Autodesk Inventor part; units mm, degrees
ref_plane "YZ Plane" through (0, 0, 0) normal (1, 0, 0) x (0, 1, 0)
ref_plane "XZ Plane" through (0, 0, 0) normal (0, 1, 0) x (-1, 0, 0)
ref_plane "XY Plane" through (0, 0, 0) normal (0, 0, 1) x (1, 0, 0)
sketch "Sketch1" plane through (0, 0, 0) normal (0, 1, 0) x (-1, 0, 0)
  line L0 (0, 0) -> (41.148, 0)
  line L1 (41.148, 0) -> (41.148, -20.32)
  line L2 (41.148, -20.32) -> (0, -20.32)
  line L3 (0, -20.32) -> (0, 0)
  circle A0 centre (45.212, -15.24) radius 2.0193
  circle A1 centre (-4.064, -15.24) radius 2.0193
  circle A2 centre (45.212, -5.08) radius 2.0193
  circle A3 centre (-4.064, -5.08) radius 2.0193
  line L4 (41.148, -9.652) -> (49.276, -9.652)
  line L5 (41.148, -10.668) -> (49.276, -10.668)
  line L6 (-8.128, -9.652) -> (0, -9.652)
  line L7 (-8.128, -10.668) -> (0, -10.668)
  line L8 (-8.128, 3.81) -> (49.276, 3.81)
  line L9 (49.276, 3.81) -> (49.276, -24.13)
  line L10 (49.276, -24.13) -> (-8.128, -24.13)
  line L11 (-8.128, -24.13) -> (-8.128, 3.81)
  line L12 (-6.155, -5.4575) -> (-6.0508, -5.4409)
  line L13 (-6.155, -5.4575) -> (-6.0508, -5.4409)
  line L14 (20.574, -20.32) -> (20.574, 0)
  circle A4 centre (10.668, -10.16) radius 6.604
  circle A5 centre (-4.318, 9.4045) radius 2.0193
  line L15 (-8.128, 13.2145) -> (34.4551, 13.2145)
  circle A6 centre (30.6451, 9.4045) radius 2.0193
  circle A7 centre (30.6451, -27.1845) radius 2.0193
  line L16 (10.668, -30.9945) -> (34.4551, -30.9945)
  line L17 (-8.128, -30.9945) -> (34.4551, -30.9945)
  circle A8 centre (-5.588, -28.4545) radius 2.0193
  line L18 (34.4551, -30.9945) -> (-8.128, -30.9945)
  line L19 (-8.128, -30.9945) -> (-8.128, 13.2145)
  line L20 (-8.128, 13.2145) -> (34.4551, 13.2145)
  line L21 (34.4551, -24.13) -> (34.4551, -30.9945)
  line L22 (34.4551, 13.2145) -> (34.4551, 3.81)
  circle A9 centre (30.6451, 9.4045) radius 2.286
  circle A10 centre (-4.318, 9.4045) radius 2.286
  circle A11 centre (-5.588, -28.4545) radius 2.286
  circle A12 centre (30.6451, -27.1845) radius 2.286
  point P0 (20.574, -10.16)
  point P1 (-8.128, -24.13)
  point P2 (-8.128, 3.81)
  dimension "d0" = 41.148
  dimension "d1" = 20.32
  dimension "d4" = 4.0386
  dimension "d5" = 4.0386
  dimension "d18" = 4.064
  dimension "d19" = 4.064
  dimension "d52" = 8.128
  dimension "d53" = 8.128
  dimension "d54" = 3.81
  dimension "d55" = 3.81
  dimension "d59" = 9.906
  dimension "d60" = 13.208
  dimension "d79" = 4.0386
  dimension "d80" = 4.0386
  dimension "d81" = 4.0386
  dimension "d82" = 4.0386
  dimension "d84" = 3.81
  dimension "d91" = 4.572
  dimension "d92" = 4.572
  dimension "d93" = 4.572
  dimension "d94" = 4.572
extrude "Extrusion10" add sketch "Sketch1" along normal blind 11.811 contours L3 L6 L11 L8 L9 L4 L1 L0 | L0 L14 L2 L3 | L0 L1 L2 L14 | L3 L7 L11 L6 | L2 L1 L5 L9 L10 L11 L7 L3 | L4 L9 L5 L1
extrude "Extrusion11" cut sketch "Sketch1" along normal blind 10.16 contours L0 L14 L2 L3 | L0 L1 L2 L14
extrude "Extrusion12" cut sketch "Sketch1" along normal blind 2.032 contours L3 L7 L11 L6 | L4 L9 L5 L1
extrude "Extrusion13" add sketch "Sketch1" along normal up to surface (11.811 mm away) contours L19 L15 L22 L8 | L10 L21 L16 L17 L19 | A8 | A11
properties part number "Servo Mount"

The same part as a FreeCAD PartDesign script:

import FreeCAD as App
import Part
import Sketcher

V = App.Vector
Q = App.Units.Quantity


def add_polygon(sketch, points):
    """Adds a closed chain of lines whose ends are joined by coincident constraints."""
    first, n = sketch.GeometryCount, len(points)
    for a, b in zip(points, points[1:] + points[:1]):
        sketch.addGeometry(Part.LineSegment(App.Vector(*a, 0), App.Vector(*b, 0)), False)
    for i in range(n):
        sketch.addConstraint(Sketcher.Constraint("Coincident", first + i, 2, first + (i + 1) % n, 1))

doc = App.newDocument("Part")
body = doc.addObject("PartDesign::Body", "Body")

# Sketch on XZ plane
sketch1 = body.newObject("Sketcher::SketchObject", "Sketch")
sketch1.AttachmentSupport = (doc.getObject("XZ_Plane"), [""])
sketch1.MapMode = "FlatFace"
add_polygon(sketch1, [(8.128, 3.81), (8.128, -24.13), (-49.276, -24.13), (-49.276, 3.81)])  # lines 0-3
sketch1.addGeometry(Part.Circle(V(4.064, -5.08, 0), V(0, 0, 1), 2.0193), False)  # 4
sketch1.addGeometry(Part.Circle(V(-45.212, -5.08, 0), V(0, 0, 1), 2.0193), False)  # 5
sketch1.addGeometry(Part.Circle(V(-10.668, -10.16, 0), V(0, 0, 1), 6.604), False)  # 6
sketch1.addGeometry(Part.Circle(V(-45.212, -15.24, 0), V(0, 0, 1), 2.0193), False)  # 7
sketch1.addGeometry(Part.Circle(V(4.064, -15.24, 0), V(0, 0, 1), 2.0193), False)  # 8
sketch1.addConstraint([
    Sketcher.Constraint("Vertical", 0),
    Sketcher.Constraint("Horizontal", 1),
    Sketcher.Constraint("Vertical", 2),
    Sketcher.Constraint("Horizontal", 3),
    Sketcher.Constraint("Equal", 4, 5),
    Sketcher.Constraint("Equal", 5, 7),
    Sketcher.Constraint("Equal", 7, 8),
    Sketcher.Constraint("Horizontal", 4, 3, 5, 3),
    Sketcher.Constraint("Horizontal", 7, 3, 8, 3),
    Sketcher.Constraint("Vertical", 5, 3, 7, 3),
    Sketcher.Constraint("Vertical", 4, 3, 8, 3),
    Sketcher.Constraint("Diameter", 6, Q("0.52 in")),
    Sketcher.Constraint("Diameter", 4, Q("0.159 in")),
    Sketcher.Constraint("DistanceX", -1, 1, 4, 3, Q("0.16 in")),
    Sketcher.Constraint("DistanceX", -1, 1, 0, 2, Q("0.32 in")),
    Sketcher.Constraint("DistanceY", -1, 1, 2, 2, Q("0.15 in")),
    Sketcher.Constraint("DistanceX", 1, 2, 7, 3, Q("0.16 in")),
    Sketcher.Constraint("DistanceY", 0, 2, 0, 1, Q("1.1 in")),
    Sketcher.Constraint("DistanceX", 1, 2, 1, 1, Q("2.26 in")),
    Sketcher.Constraint("DistanceY", 4, 3, -1, 1, Q("0.2 in")),
    Sketcher.Constraint("DistanceY", 6, 3, -1, 1, Q("0.4 in")),
    Sketcher.Constraint("DistanceY", 7, 3, -1, 1, Q("0.6 in")),
    Sketcher.Constraint("DistanceX", 6, 3, -1, 1, Q("0.42 in")),
])
pad1 = body.newObject("PartDesign::Pad", "Pad")
pad1.Profile = sketch1
pad1.Length = Q("0.465 in")
pad1.Reversed = True

# Sketch on XZ plane
sketch2 = body.newObject("Sketcher::SketchObject", "Sketch001")
sketch2.AttachmentSupport = (doc.getObject("XZ_Plane"), [""])
sketch2.MapMode = "FlatFace"
add_polygon(sketch2, [(0, 0), (0, -20.32), (-41.148, -20.32), (-41.148, 0)])  # lines 0-3
sketch2.addGeometry(Part.Circle(V(-10.668, -10.16, 0), V(0, 0, 1), 6.604), False)  # 4
sketch2.addConstraint([
    Sketcher.Constraint("Vertical", 0),
    Sketcher.Constraint("Horizontal", 1),
    Sketcher.Constraint("Vertical", 2),
    Sketcher.Constraint("Horizontal", 3),
    Sketcher.Constraint("Coincident", 3, 2, -1, 1),
    Sketcher.Constraint("Diameter", 4, Q("0.52 in")),
    Sketcher.Constraint("DistanceY", 0, 2, 0, 1, Q("0.8 in")),
    Sketcher.Constraint("DistanceX", 1, 2, 1, 1, Q("1.62 in")),
    Sketcher.Constraint("DistanceY", 4, 3, -1, 1, Q("0.4 in")),
    Sketcher.Constraint("DistanceX", 1, 2, 4, 3, Q("1.2 in")),
])
pocket1 = body.newObject("PartDesign::Pocket", "Pocket")
pocket1.Profile = sketch2
pocket1.Length = Q("0.4 in")

# Sketch on XZ plane
sketch3 = body.newObject("Sketcher::SketchObject", "Sketch002")
sketch3.AttachmentSupport = (doc.getObject("XZ_Plane"), [""])
sketch3.MapMode = "FlatFace"
add_polygon(sketch3, [(0, -10.668), (0, -9.652), (8.128, -9.652), (8.128, -10.668)])  # lines 0-3
add_polygon(sketch3, [(-49.276, -9.652), (-41.148, -9.652), (-41.148, -10.668), (-49.276, -10.668)])  # lines 4-7
sketch3.addConstraint([
    Sketcher.Constraint("Vertical", 0),
    Sketcher.Constraint("Horizontal", 1),
    Sketcher.Constraint("Vertical", 2),
    Sketcher.Constraint("Horizontal", 3),
    Sketcher.Constraint("Horizontal", 4),
    Sketcher.Constraint("Vertical", 5),
    Sketcher.Constraint("Horizontal", 6),
    Sketcher.Constraint("Vertical", 7),
    Sketcher.Constraint("PointOnObject", 0, 2, -2),
    Sketcher.Constraint("Horizontal", 1, 2, 4, 2),
    Sketcher.Constraint("Horizontal", 3, 2, 5, 2),
    Sketcher.Constraint("Equal", 3, 4),
    Sketcher.Constraint("DistanceX", 1, 1, 1, 2, Q("0.32 in")),
    Sketcher.Constraint("DistanceX", 4, 2, -1, 1, Q("1.62 in")),
    Sketcher.Constraint("DistanceY", 0, 1, 0, 2, Q("0.04 in")),
    Sketcher.Constraint("DistanceY", 0, 2, -1, 1, Q("0.38 in")),
])
pocket2 = body.newObject("PartDesign::Pocket", "Pocket001")
pocket2.Profile = sketch3
pocket2.Length = Q("0.08 in")

# Sketch on XZ plane
sketch4 = body.newObject("Sketcher::SketchObject", "Sketch003")
sketch4.AttachmentSupport = (doc.getObject("XZ_Plane"), [""])
sketch4.MapMode = "FlatFace"
add_polygon(sketch4, [(8.128, 13.2145), (8.128, 3.81), (-34.4551, 3.81), (-34.4551, 13.2145)])  # lines 0-3
sketch4.addGeometry(Part.Circle(V(4.318, 9.4045, 0), V(0, 0, 1), 2.286), False)  # 4
sketch4.addGeometry(Part.Circle(V(-30.6451, 9.4045, 0), V(0, 0, 1), 2.286), False)  # 5
add_polygon(sketch4, [(-34.4551, -24.13), (8.128, -24.13), (8.128, -30.9945), (-34.4551, -30.9945)])  # lines 6-9
sketch4.addGeometry(Part.Circle(V(-30.6451, -27.1845, 0), V(0, 0, 1), 2.286), False)  # 10
sketch4.addConstraint([
    Sketcher.Constraint("Vertical", 0),
    Sketcher.Constraint("Horizontal", 1),
    Sketcher.Constraint("Vertical", 2),
    Sketcher.Constraint("Horizontal", 3),
    Sketcher.Constraint("Horizontal", 6),
    Sketcher.Constraint("Vertical", 7),
    Sketcher.Constraint("Horizontal", 8),
    Sketcher.Constraint("Vertical", 9),
    Sketcher.Constraint("Equal", 4, 5),
    Sketcher.Constraint("Equal", 5, 10),
    Sketcher.Constraint("Horizontal", 4, 3, 5, 3),
    Sketcher.Constraint("Vertical", 5, 3, 10, 3),
    Sketcher.Constraint("Vertical", 3, 2, 6, 2),
    Sketcher.Constraint("Vertical", 2, 2, 8, 2),
    Sketcher.Constraint("Diameter", 4, Q("0.18 in")),
    Sketcher.Constraint("DistanceX", -1, 1, 0, 2, Q("0.32 in")),
    Sketcher.Constraint("DistanceY", -1, 1, 0, 2, Q("0.15 in")),
    Sketcher.Constraint("DistanceX", 4, 3, 0, 2, Q("0.15 in")),
    Sketcher.Constraint("DistanceX", 1, 2, 5, 3, Q("0.15 in")),
    Sketcher.Constraint("DistanceY", 5, 3, 2, 2, Q("0.15 in")),
    Sketcher.Constraint("DistanceY", 7, 2, 10, 3, Q("0.15 in")),
    Sketcher.Constraint("DistanceY", 6, 2, 0, 2, Q("1.1 in")),
    Sketcher.Constraint("DistanceX", 1, 2, 1, 1, Q("1.6765 in")),
    Sketcher.Constraint("DistanceY", 0, 2, 0, 1, Q("9.4045 mm")),
    Sketcher.Constraint("DistanceY", 7, 2, 7, 1, Q("6.8645 mm")),
])
pad2 = body.newObject("PartDesign::Pad", "Pad001")
pad2.Profile = sketch4
pad2.Length = Q("0.465 in")
pad2.Reversed = True

doc.recompute()
